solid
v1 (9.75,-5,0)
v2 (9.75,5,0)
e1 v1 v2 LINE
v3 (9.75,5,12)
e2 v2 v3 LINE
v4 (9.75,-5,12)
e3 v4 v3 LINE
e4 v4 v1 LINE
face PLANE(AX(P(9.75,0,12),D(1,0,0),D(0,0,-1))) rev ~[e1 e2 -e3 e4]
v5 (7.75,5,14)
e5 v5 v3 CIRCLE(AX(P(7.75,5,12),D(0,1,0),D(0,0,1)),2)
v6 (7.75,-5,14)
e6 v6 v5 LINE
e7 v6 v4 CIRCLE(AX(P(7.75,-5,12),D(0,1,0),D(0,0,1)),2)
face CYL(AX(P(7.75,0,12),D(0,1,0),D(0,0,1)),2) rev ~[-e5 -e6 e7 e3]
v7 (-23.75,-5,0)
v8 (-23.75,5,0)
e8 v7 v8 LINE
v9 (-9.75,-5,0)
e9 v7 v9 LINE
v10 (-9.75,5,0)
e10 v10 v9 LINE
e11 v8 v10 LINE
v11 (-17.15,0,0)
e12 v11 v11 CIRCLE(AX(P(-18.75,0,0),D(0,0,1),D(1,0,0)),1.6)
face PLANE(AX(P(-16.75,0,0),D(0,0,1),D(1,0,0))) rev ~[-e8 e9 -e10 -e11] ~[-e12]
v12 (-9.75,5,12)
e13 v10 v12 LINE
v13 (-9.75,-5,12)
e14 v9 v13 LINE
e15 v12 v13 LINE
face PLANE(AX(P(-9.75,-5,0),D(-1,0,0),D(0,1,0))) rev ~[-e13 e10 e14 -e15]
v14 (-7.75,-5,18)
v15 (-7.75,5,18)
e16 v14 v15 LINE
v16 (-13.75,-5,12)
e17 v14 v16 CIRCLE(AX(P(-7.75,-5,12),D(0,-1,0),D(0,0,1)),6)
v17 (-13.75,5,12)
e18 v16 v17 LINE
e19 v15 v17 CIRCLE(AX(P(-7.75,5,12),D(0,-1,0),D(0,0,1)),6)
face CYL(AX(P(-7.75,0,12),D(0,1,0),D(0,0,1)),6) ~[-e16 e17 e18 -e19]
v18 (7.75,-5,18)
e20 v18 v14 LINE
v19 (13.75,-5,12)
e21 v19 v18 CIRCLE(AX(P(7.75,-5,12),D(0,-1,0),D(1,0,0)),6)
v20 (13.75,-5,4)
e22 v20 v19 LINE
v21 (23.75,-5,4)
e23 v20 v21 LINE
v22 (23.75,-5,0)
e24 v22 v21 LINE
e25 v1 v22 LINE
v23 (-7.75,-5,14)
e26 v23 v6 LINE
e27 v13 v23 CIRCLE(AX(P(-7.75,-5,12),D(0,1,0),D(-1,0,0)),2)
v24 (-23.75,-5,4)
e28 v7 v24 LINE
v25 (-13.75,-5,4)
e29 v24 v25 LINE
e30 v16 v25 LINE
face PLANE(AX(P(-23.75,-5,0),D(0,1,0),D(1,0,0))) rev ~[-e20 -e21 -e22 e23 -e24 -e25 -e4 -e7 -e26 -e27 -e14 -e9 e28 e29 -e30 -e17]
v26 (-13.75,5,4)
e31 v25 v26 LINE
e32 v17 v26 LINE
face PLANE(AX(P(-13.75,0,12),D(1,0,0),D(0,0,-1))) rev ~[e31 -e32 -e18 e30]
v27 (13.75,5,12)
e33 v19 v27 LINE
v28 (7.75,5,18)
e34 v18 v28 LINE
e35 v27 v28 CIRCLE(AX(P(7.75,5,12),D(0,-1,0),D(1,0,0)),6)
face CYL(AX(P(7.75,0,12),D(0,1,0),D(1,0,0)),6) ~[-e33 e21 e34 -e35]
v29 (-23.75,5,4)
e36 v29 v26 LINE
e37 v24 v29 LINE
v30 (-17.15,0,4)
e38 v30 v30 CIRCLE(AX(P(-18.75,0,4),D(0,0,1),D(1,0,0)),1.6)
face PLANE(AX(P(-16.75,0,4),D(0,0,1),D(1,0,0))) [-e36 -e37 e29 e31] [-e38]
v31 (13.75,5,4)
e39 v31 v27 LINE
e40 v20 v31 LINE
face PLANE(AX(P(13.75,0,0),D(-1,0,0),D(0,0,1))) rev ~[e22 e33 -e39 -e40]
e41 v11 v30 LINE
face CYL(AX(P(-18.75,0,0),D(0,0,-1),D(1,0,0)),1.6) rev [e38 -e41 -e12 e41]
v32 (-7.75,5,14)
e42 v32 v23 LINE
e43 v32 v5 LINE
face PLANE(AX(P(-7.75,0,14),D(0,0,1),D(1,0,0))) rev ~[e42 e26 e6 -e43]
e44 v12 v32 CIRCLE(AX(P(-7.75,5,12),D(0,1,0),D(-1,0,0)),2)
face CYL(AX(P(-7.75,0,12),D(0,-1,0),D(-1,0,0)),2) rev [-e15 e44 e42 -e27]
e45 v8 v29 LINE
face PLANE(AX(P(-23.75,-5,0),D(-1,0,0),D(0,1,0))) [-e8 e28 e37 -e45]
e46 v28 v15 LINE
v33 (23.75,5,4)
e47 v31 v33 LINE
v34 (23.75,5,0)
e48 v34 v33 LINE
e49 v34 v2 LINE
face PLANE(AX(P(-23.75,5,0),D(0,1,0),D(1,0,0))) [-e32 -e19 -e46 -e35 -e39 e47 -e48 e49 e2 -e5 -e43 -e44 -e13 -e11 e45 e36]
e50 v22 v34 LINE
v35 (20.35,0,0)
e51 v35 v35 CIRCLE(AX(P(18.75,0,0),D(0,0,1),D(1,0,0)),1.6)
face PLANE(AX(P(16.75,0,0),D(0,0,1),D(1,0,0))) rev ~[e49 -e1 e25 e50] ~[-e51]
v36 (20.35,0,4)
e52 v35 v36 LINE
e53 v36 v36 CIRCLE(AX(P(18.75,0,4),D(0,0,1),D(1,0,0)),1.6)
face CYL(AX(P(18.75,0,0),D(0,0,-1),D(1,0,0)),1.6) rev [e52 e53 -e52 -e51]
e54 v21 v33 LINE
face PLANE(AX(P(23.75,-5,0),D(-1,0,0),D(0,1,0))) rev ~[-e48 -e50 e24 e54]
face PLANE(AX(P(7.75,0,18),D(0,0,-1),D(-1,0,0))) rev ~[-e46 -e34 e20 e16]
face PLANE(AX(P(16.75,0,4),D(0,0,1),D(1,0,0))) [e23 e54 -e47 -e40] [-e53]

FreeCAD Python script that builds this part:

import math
import FreeCAD as App
import Part
import Sketcher
Q = App.Units.Quantity

doc = App.newDocument("Part")
body = doc.addObject("PartDesign::Body", "Body")

sketch1 = doc.addObject("Sketcher::SketchObject", "Sketch")
body.addObject(sketch1)
sketch1.AttachmentSupport = (doc.XY_Plane, [""])
sketch1.MapMode = "FlatFace"
sketch1.addGeometry([
    Part.LineSegment(App.Vector(-23.8, 5, 0), App.Vector(-23.8, -5, 0)),
    Part.LineSegment(App.Vector(-23.8, -5, 0), App.Vector(-9.8, -5, 0)),
    Part.LineSegment(App.Vector(-9.8, -5, 0), App.Vector(-9.8, 5, 0)),
    Part.LineSegment(App.Vector(-9.8, 5, 0), App.Vector(-23.8, 5, 0)),
    Part.Circle(App.Vector(-18.8, 0, 0), App.Vector(0, 0, 1), 1.6),
], False)
sketch1.addConstraint([
    Sketcher.Constraint("Coincident", 0, 2, 1, 1),
    Sketcher.Constraint("Coincident", 1, 2, 2, 1),
    Sketcher.Constraint("Coincident", 2, 2, 3, 1),
    Sketcher.Constraint("Coincident", 3, 2, 0, 1),
    Sketcher.Constraint("Vertical", 0),
    Sketcher.Constraint("Horizontal", 1),
    Sketcher.Constraint("Vertical", 2),
    Sketcher.Constraint("Horizontal", 3),
    Sketcher.Constraint("PointOnObject", 4, 3, -1),
    Sketcher.Constraint("Diameter", 4, Q("3.2 mm")),
    Sketcher.Constraint("DistanceX", 1, 1, 1, 2, Q("14 mm")),
    Sketcher.Constraint("DistanceY", 0, 2, 0, 1, Q("10 mm")),
    Sketcher.Constraint("DistanceY", 0, 2, -1, 1, Q("5 mm")),
    Sketcher.Constraint("DistanceX", 0, 2, 4, 3, Q("5 mm")),
    Sketcher.Constraint("DistanceX", 4, 3, -1, 1, Q("18.75 mm")),
])
pad1 = doc.addObject("PartDesign::Pad", "Pad")
body.addObject(pad1)
pad1.Profile = sketch1
pad1.Length = 4
body2 = doc.addObject("PartDesign::Body", "Body001")

sketch2 = doc.addObject("Sketcher::SketchObject", "Sketch001")
body2.addObject(sketch2)
sketch2.AttachmentSupport = (doc.getObject("XY_Plane001"), [""])
sketch2.MapMode = "FlatFace"
sketch2.addGeometry([
    Part.LineSegment(App.Vector(9.8, 5, 0), App.Vector(9.8, -5, 0)),
    Part.LineSegment(App.Vector(9.8, -5, 0), App.Vector(23.8, -5, 0)),
    Part.LineSegment(App.Vector(23.8, -5, 0), App.Vector(23.8, 5, 0)),
    Part.LineSegment(App.Vector(23.8, 5, 0), App.Vector(9.8, 5, 0)),
    Part.Circle(App.Vector(18.8, 0, 0), App.Vector(0, 0, 1), 1.6),
], False)
sketch2.addConstraint([
    Sketcher.Constraint("Coincident", 0, 2, 1, 1),
    Sketcher.Constraint("Coincident", 1, 2, 2, 1),
    Sketcher.Constraint("Coincident", 2, 2, 3, 1),
    Sketcher.Constraint("Coincident", 3, 2, 0, 1),
    Sketcher.Constraint("Vertical", 0),
    Sketcher.Constraint("Horizontal", 1),
    Sketcher.Constraint("Vertical", 2),
    Sketcher.Constraint("Horizontal", 3),
    Sketcher.Constraint("PointOnObject", 4, 3, -1),
    Sketcher.Constraint("Diameter", 4, Q("3.2 mm")),
    Sketcher.Constraint("DistanceX", 1, 1, 1, 2, Q("14 mm")),
    Sketcher.Constraint("DistanceY", 0, 2, 0, 1, Q("10 mm")),
    Sketcher.Constraint("DistanceY", 0, 2, -1, 1, Q("5 mm")),
    Sketcher.Constraint("DistanceX", 0, 2, 4, 3, Q("9 mm")),
    Sketcher.Constraint("DistanceX", -1, 1, 4, 3, Q("18.75 mm")),
])
pad2 = doc.addObject("PartDesign::Pad", "Pad001")
body2.addObject(pad2)
pad2.Profile = sketch2
pad2.Length = 4
body.AllowCompound = True
doc.recompute()

boolean = doc.addObject("PartDesign::Boolean", "Boolean")
body.addObject(boolean)
boolean.Type = "Fuse"
boolean.addObjects([body2])

sketch3 = doc.addObject("Sketcher::SketchObject", "Sketch002")
body.addObject(sketch3)
sketch3.AttachmentSupport = (doc.XZ_Plane, [""])
sketch3.MapMode = "FlatFace"
sketch3.addGeometry([
    Part.LineSegment(App.Vector(-13.8, 0, 0), App.Vector(-9.8, 0, 0)),
    Part.LineSegment(App.Vector(-9.8, 0, 0), App.Vector(-9.8, 12, 0)),
    Part.ArcOfCircle(Part.Circle(App.Vector(-7.8, 12, 0), App.Vector(0, 0, 1), 2), math.radians(90), math.radians(180)),
    Part.LineSegment(App.Vector(-7.8, 14, 0), App.Vector(7.8, 14, 0)),
    Part.ArcOfCircle(Part.Circle(App.Vector(7.8, 12, 0), App.Vector(0, 0, 1), 2), math.radians(0), math.radians(90)),
    Part.LineSegment(App.Vector(9.8, 12, 0), App.Vector(9.8, 0, 0)),
    Part.LineSegment(App.Vector(9.8, 0, 0), App.Vector(13.8, 0, 0)),
    Part.LineSegment(App.Vector(13.8, 0, 0), App.Vector(13.8, 12, 0)),
    Part.ArcOfCircle(Part.Circle(App.Vector(7.8, 12, 0), App.Vector(0, 0, 1), 6), math.radians(0), math.radians(90)),
    Part.LineSegment(App.Vector(7.8, 18, 0), App.Vector(-7.8, 18, 0)),
    Part.ArcOfCircle(Part.Circle(App.Vector(-7.8, 12, 0), App.Vector(0, 0, 1), 6), math.radians(90), math.radians(180)),
    Part.LineSegment(App.Vector(-13.8, 12, 0), App.Vector(-13.8, 0, 0)),
], False)
sketch3.addConstraint([
    Sketcher.Constraint("Coincident", 0, 2, 1, 1),
    Sketcher.Constraint("Tangent", 1, 2, 2, 2),
    Sketcher.Constraint("Tangent", 2, 1, 3, 1),
    Sketcher.Constraint("Tangent", 3, 2, 4, 2),
    Sketcher.Constraint("Tangent", 4, 1, 5, 1),
    Sketcher.Constraint("Coincident", 5, 2, 6, 1),
    Sketcher.Constraint("Coincident", 6, 2, 7, 1),
    Sketcher.Constraint("Tangent", 7, 2, 8, 1),
    Sketcher.Constraint("Tangent", 8, 2, 9, 1),
    Sketcher.Constraint("Tangent", 9, 2, 10, 1),
    Sketcher.Constraint("Tangent", 10, 2, 11, 1),
    Sketcher.Constraint("Coincident", 11, 2, 0, 1),
    Sketcher.Constraint("Horizontal", 0),
    Sketcher.Constraint("Vertical", 1),
    Sketcher.Constraint("Horizontal", 3),
    Sketcher.Constraint("Vertical", 5),
    Sketcher.Constraint("Horizontal", 6),
    Sketcher.Constraint("Vertical", 7),
    Sketcher.Constraint("Horizontal", 9),
    Sketcher.Constraint("Vertical", 11),
    Sketcher.Constraint("Coincident", 8, 3, 4, 3),
    Sketcher.Constraint("Coincident", 10, 3, 2, 3),
    Sketcher.Constraint("Equal", 2, 4),
    Sketcher.Constraint("Symmetric", 0, 2, 5, 2, -1, 1),
    Sketcher.Constraint("PointOnObject", 0, 2, -1),
    Sketcher.Constraint("Radius", 2, Q("2 mm")),
    Sketcher.Constraint("Radius", 8, Q("6 mm")),
    Sketcher.Constraint("DistanceY", 1, 1, 1, 2, Q("12 mm")),
    Sketcher.Constraint("DistanceX", 3, 1, 3, 2, Q("15.5 mm")),
])
pad3 = doc.addObject("PartDesign::Pad", "Pad002")
body.addObject(pad3)
pad3.Profile = sketch3
pad3.Type = "TwoLengths"
pad3.Length = 5
pad3.Length2 = 5

doc.recompute()
